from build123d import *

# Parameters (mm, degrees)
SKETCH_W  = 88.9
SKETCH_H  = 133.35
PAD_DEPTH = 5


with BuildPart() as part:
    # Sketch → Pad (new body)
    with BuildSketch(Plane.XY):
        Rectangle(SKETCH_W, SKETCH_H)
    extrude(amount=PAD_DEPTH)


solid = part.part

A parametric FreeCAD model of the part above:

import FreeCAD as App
import Part
import Sketcher
Q = App.Units.Quantity

doc = App.newDocument("Part")
body = doc.addObject("PartDesign::Body", "Body")

sketch1 = body.newObject("Sketcher::SketchObject", "Sketch")
sketch1.AttachmentSupport = (doc.getObject("XY_Plane"), [""])
sketch1.MapMode = "FlatFace"
sketch1.addGeometry(Part.LineSegment(App.Vector(-44.45, 66.675, 0), App.Vector(-44.45, -66.675, 0)), False)
sketch1.addGeometry(Part.LineSegment(App.Vector(-44.45, -66.675, 0), App.Vector(44.45, -66.675, 0)), False)
sketch1.addGeometry(Part.LineSegment(App.Vector(44.45, -66.675, 0), App.Vector(44.45, 66.675, 0)), False)
sketch1.addGeometry(Part.LineSegment(App.Vector(44.45, 66.675, 0), App.Vector(-44.45, 66.675, 0)), False)
sketch1.addConstraint(Sketcher.Constraint("Coincident", 0, 2, 1, 1))
sketch1.addConstraint(Sketcher.Constraint("Coincident", 1, 2, 2, 1))
sketch1.addConstraint(Sketcher.Constraint("Coincident", 2, 2, 3, 1))
sketch1.addConstraint(Sketcher.Constraint("Coincident", 3, 2, 0, 1))
sketch1.addConstraint(Sketcher.Constraint("Vertical", 0))
sketch1.addConstraint(Sketcher.Constraint("Horizontal", 1))
sketch1.addConstraint(Sketcher.Constraint("Vertical", 2))
sketch1.addConstraint(Sketcher.Constraint("Horizontal", 3))
sketch1.addConstraint(Sketcher.Constraint("Symmetric", 0, 2, 2, 2, -1, 1))
sketch1.addConstraint(Sketcher.Constraint("DistanceX", 1, 1, 1, 2, Q("3.5 in")))
sketch1.addConstraint(Sketcher.Constraint("DistanceY", 0, 2, 0, 1, Q("5.25 in")))
pad1 = body.newObject("PartDesign::Pad", "Pad")
pad1.Profile = sketch1
pad1.Length = 5

doc.recompute()
